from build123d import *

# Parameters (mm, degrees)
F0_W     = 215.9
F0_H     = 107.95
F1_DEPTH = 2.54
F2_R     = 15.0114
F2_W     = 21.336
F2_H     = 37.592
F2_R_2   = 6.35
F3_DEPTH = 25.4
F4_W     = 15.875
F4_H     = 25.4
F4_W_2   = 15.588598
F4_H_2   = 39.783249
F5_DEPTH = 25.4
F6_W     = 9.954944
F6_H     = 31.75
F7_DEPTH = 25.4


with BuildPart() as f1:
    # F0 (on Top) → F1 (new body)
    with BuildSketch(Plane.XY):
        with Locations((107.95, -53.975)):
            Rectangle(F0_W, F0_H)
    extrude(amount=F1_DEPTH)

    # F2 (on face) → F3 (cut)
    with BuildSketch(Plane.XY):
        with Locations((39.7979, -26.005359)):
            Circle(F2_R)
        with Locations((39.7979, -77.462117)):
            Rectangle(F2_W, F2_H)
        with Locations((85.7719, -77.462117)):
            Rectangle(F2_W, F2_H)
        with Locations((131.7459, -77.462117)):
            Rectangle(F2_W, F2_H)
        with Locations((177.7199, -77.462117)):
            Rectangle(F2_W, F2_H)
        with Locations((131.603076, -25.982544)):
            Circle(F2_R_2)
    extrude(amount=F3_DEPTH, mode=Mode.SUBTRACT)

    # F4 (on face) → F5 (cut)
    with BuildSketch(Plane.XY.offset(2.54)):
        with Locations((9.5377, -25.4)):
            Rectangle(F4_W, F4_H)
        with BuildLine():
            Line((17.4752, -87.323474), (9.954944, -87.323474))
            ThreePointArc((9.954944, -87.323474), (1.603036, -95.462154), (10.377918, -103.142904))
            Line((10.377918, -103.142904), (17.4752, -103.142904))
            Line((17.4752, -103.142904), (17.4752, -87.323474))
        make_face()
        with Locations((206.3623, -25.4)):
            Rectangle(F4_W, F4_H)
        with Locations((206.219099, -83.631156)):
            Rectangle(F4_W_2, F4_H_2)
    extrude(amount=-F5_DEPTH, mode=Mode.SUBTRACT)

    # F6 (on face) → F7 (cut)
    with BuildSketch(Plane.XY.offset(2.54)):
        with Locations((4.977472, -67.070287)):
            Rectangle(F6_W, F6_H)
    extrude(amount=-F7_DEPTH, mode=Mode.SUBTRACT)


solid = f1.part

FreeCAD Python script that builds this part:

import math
import FreeCAD as App
import Part
import Sketcher
Q = App.Units.Quantity


def add_polygon(sketch, points):
    """Adds a closed chain of lines whose ends are joined by coincident constraints."""
    first, n = sketch.GeometryCount, len(points)
    for a, b in zip(points, points[1:] + points[:1]):
        sketch.addGeometry(Part.LineSegment(App.Vector(*a, 0), App.Vector(*b, 0)), False)
    for i in range(n):
        sketch.addConstraint(Sketcher.Constraint("Coincident", first + i, 2, first + (i + 1) % n, 1))

doc = App.newDocument("Part")
body = doc.addObject("PartDesign::Body", "Body")

sketch1 = body.newObject("Sketcher::SketchObject", "Sketch")
sketch1.AttachmentSupport = (doc.getObject("XY_Plane"), [""])
sketch1.MapMode = "FlatFace"
add_polygon(sketch1, [(0, 0), (0, -108), (216, -108), (216, 0)])
sketch1.addConstraint([
    Sketcher.Constraint("Vertical", 0),
    Sketcher.Constraint("Horizontal", 1),
    Sketcher.Constraint("Vertical", 2),
    Sketcher.Constraint("Horizontal", 3),
    Sketcher.Constraint("Coincident", 3, 2, -1, 1),
    Sketcher.Constraint("DistanceX", 1, 1, 1, 2, Q("8.5 in")),
    Sketcher.Constraint("DistanceY", 0, 2, 0, 1, Q("4.25 in")),
])
pad1 = body.newObject("PartDesign::Pad", "Pad")
pad1.Profile = sketch1
pad1.Length = Q("0.1 in")

sketch2 = body.newObject("Sketcher::SketchObject", "Sketch001")
sketch2.AttachmentSupport = (doc.getObject("XY_Plane"), [""])
sketch2.MapMode = "FlatFace"
sketch2.addGeometry(Part.Circle(App.Vector(40, -26, 0), App.Vector(0, 0, 1), 15), False)
add_polygon(sketch2, [(29, -59), (29, -96), (50, -96), (50, -59)])
add_polygon(sketch2, [(75, -59), (75, -96), (96, -96), (96, -59)])
add_polygon(sketch2, [(121, -59), (121, -96), (142, -96), (142, -59)])
add_polygon(sketch2, [(167, -59), (167, -96), (188, -96), (188, -59)])
sketch2.addGeometry(Part.Circle(App.Vector(132, -26, 0), App.Vector(0, 0, 1), 6), False)
sketch2.addConstraint([
    Sketcher.Constraint("Vertical", 1),
    Sketcher.Constraint("Horizontal", 2),
    Sketcher.Constraint("Vertical", 3),
    Sketcher.Constraint("Horizontal", 4),
    Sketcher.Constraint("Vertical", 5),
    Sketcher.Constraint("Horizontal", 6),
    Sketcher.Constraint("Vertical", 7),
    Sketcher.Constraint("Horizontal", 8),
    Sketcher.Constraint("Vertical", 9),
    Sketcher.Constraint("Horizontal", 10),
    Sketcher.Constraint("Vertical", 11),
    Sketcher.Constraint("Horizontal", 12),
    Sketcher.Constraint("Vertical", 13),
    Sketcher.Constraint("Horizontal", 14),
    Sketcher.Constraint("Vertical", 15),
    Sketcher.Constraint("Horizontal", 16),
    Sketcher.Constraint("Horizontal", 2, 2, 5, 2),
    Sketcher.Constraint("Horizontal", 4, 2, 7, 2),
    Sketcher.Constraint("Horizontal", 6, 2, 9, 2),
    Sketcher.Constraint("Horizontal", 8, 2, 11, 2),
    Sketcher.Constraint("Horizontal", 10, 2, 13, 2),
    Sketcher.Constraint("Horizontal", 12, 2, 15, 2),
    Sketcher.Constraint("Equal", 4, 6),
    Sketcher.Constraint("Equal", 8, 10),
    Sketcher.Constraint("Equal", 12, 14),
    Sketcher.Constraint("Diameter", 17, Q("0.5 in")),
    Sketcher.Constraint("Diameter", 0, Q("1.182 in")),
    Sketcher.Constraint("DistanceX", 2, 1, 2, 2, Q("0.84 in")),
    Sketcher.Constraint("DistanceY", 1, 2, 1, 1, Q("1.48 in")),
    Sketcher.Constraint("DistanceX", 1, 2, 0, 3, Q("0.42 in")),
    Sketcher.Constraint("DistanceX", 2, 2, 5, 2, Q("0.97 in")),
    Sketcher.Constraint("DistanceX", 6, 2, 9, 2, Q("0.97 in")),
    Sketcher.Constraint("DistanceX", 10, 2, 13, 2, Q("0.97 in")),
    Sketcher.Constraint("DistanceX", -1, 1, 0, 3, 39.7979),
    Sketcher.Constraint("DistanceY", 0, 3, -1, 1, 26.005359),
    Sketcher.Constraint("DistanceY", 1, 2, 0, 3, 70.252758),
    Sketcher.Constraint("DistanceX", -1, 1, 17, 3, 131.603076),
    Sketcher.Constraint("DistanceY", 17, 3, -1, 1, 25.982544),
])
pocket1 = body.newObject("PartDesign::Pocket", "Pocket")
pocket1.Profile = sketch2
pocket1.Length = Q("1 in")
pocket1.Reversed = True

sketch3 = body.newObject("Sketcher::SketchObject", "Sketch002")
sketch3.AttachmentSupport = (doc.getObject("XY_Plane"), [""])
sketch3.MapMode = "FlatFace"
sketch3.AttachmentOffset = App.Placement(App.Vector(0, 0, 0.1 * 25.4), App.Rotation())
add_polygon(sketch3, [(2, -13), (2, -38), (17, -38), (17, -13)])
sketch3.addGeometry(Part.LineSegment(App.Vector(17, -87, 0), App.Vector(10, -87, 0)), False)
sketch3.addGeometry(Part.ArcOfCircle(Part.Circle(App.Vector(10, -95, 0), App.Vector(0, 0, 1), 8), math.radians(87), math.radians(276)), False)
sketch3.addGeometry(Part.LineSegment(App.Vector(10, -103, 0), App.Vector(17, -103, 0)), False)
sketch3.addGeometry(Part.LineSegment(App.Vector(17, -103, 0), App.Vector(17, -87, 0)), False)
add_polygon(sketch3, [(198, -13), (198, -38), (214, -38), (214, -13)])
add_polygon(sketch3, [(198, -64), (198, -104), (214, -104), (214, -64)])
sketch3.addConstraint([
    Sketcher.Constraint("Coincident", 4, 2, 5, 1),
    Sketcher.Constraint("Coincident", 5, 2, 6, 1),
    Sketcher.Constraint("Coincident", 6, 2, 7, 1),
    Sketcher.Constraint("Coincident", 7, 2, 4, 1),
    Sketcher.Constraint("Vertical", 0),
    Sketcher.Constraint("Horizontal", 1),
    Sketcher.Constraint("Vertical", 2),
    Sketcher.Constraint("Horizontal", 3),
    Sketcher.Constraint("Horizontal", 4),
    Sketcher.Constraint("Horizontal", 6),
    Sketcher.Constraint("Vertical", 7),
    Sketcher.Constraint("Vertical", 8),
    Sketcher.Constraint("Horizontal", 9),
    Sketcher.Constraint("Vertical", 10),
    Sketcher.Constraint("Horizontal", 11),
    Sketcher.Constraint("Vertical", 12),
    Sketcher.Constraint("Horizontal", 13),
    Sketcher.Constraint("Vertical", 14),
    Sketcher.Constraint("Horizontal", 15),
    Sketcher.Constraint("Horizontal", 1, 2, 8, 2),
    Sketcher.Constraint("Horizontal", 3, 2, 10, 2),
    Sketcher.Constraint("Vertical", 2, 2, 6, 2),
    Sketcher.Constraint("Vertical", 11, 2, 12, 2),
    Sketcher.Constraint("Equal", 3, 9),
    Sketcher.Constraint("DistanceY", 0, 2, 0, 1, Q("1 in")),
    Sketcher.Constraint("Radius", 5, Q("0.3125 in")),
    Sketcher.Constraint("DistanceY", 0, 2, -1, 1, Q("1.5 in")),
    Sketcher.Constraint("DistanceX", 1, 1, 1, 2, Q("0.625 in")),
    Sketcher.Constraint("DistanceY", 5, 3, -1, 1, Q("3.75 in")),
    Sketcher.Constraint("DistanceX", -1, 1, 0, 2, Q("0.063 in")),
    Sketcher.Constraint("DistanceX", -1, 1, 8, 2, Q("7.812 in")),
    Sketcher.Constraint("DistanceX", 0, 2, 5, 3, Q("0.3125 in")),
    Sketcher.Constraint("DistanceY", 12, 2, -1, 1, Q("4.0757 in")),
    Sketcher.Constraint("DistanceY", 7, 1, 7, 2, 15.81943),
    Sketcher.Constraint("DistanceY", 12, 2, 12, 1, 39.783249),
    Sketcher.Constraint("DistanceX", -1, 1, 13, 2, 214.013398),
    Sketcher.Constraint("DistanceX", 4, 2, 4, 1, 7.520256),
])
pocket2 = body.newObject("PartDesign::Pocket", "Pocket001")
pocket2.Profile = sketch3
pocket2.Length = Q("1 in")

sketch4 = body.newObject("Sketcher::SketchObject", "Sketch003")
sketch4.AttachmentSupport = (doc.getObject("XY_Plane"), [""])
sketch4.MapMode = "FlatFace"
sketch4.AttachmentOffset = App.Placement(App.Vector(0, 0, 0.1 * 25.4), App.Rotation())
add_polygon(sketch4, [(0, -51), (0, -83), (10, -83), (10, -51)])
sketch4.addConstraint([
    Sketcher.Constraint("Vertical", 0),
    Sketcher.Constraint("Horizontal", 1),
    Sketcher.Constraint("Vertical", 2),
    Sketcher.Constraint("Horizontal", 3),
    Sketcher.Constraint("PointOnObject", 0, 2, -2),
    Sketcher.Constraint("DistanceY", 0, 2, 0, 1, Q("1.25 in")),
    Sketcher.Constraint("DistanceX", 1, 1, 1, 2, 9.954944),
    Sketcher.Constraint("DistanceY", 0, 2, -1, 1, 82.945287),
])
pocket3 = body.newObject("PartDesign::Pocket", "Pocket002")
pocket3.Profile = sketch4
pocket3.Length = Q("1 in")

doc.recompute()
